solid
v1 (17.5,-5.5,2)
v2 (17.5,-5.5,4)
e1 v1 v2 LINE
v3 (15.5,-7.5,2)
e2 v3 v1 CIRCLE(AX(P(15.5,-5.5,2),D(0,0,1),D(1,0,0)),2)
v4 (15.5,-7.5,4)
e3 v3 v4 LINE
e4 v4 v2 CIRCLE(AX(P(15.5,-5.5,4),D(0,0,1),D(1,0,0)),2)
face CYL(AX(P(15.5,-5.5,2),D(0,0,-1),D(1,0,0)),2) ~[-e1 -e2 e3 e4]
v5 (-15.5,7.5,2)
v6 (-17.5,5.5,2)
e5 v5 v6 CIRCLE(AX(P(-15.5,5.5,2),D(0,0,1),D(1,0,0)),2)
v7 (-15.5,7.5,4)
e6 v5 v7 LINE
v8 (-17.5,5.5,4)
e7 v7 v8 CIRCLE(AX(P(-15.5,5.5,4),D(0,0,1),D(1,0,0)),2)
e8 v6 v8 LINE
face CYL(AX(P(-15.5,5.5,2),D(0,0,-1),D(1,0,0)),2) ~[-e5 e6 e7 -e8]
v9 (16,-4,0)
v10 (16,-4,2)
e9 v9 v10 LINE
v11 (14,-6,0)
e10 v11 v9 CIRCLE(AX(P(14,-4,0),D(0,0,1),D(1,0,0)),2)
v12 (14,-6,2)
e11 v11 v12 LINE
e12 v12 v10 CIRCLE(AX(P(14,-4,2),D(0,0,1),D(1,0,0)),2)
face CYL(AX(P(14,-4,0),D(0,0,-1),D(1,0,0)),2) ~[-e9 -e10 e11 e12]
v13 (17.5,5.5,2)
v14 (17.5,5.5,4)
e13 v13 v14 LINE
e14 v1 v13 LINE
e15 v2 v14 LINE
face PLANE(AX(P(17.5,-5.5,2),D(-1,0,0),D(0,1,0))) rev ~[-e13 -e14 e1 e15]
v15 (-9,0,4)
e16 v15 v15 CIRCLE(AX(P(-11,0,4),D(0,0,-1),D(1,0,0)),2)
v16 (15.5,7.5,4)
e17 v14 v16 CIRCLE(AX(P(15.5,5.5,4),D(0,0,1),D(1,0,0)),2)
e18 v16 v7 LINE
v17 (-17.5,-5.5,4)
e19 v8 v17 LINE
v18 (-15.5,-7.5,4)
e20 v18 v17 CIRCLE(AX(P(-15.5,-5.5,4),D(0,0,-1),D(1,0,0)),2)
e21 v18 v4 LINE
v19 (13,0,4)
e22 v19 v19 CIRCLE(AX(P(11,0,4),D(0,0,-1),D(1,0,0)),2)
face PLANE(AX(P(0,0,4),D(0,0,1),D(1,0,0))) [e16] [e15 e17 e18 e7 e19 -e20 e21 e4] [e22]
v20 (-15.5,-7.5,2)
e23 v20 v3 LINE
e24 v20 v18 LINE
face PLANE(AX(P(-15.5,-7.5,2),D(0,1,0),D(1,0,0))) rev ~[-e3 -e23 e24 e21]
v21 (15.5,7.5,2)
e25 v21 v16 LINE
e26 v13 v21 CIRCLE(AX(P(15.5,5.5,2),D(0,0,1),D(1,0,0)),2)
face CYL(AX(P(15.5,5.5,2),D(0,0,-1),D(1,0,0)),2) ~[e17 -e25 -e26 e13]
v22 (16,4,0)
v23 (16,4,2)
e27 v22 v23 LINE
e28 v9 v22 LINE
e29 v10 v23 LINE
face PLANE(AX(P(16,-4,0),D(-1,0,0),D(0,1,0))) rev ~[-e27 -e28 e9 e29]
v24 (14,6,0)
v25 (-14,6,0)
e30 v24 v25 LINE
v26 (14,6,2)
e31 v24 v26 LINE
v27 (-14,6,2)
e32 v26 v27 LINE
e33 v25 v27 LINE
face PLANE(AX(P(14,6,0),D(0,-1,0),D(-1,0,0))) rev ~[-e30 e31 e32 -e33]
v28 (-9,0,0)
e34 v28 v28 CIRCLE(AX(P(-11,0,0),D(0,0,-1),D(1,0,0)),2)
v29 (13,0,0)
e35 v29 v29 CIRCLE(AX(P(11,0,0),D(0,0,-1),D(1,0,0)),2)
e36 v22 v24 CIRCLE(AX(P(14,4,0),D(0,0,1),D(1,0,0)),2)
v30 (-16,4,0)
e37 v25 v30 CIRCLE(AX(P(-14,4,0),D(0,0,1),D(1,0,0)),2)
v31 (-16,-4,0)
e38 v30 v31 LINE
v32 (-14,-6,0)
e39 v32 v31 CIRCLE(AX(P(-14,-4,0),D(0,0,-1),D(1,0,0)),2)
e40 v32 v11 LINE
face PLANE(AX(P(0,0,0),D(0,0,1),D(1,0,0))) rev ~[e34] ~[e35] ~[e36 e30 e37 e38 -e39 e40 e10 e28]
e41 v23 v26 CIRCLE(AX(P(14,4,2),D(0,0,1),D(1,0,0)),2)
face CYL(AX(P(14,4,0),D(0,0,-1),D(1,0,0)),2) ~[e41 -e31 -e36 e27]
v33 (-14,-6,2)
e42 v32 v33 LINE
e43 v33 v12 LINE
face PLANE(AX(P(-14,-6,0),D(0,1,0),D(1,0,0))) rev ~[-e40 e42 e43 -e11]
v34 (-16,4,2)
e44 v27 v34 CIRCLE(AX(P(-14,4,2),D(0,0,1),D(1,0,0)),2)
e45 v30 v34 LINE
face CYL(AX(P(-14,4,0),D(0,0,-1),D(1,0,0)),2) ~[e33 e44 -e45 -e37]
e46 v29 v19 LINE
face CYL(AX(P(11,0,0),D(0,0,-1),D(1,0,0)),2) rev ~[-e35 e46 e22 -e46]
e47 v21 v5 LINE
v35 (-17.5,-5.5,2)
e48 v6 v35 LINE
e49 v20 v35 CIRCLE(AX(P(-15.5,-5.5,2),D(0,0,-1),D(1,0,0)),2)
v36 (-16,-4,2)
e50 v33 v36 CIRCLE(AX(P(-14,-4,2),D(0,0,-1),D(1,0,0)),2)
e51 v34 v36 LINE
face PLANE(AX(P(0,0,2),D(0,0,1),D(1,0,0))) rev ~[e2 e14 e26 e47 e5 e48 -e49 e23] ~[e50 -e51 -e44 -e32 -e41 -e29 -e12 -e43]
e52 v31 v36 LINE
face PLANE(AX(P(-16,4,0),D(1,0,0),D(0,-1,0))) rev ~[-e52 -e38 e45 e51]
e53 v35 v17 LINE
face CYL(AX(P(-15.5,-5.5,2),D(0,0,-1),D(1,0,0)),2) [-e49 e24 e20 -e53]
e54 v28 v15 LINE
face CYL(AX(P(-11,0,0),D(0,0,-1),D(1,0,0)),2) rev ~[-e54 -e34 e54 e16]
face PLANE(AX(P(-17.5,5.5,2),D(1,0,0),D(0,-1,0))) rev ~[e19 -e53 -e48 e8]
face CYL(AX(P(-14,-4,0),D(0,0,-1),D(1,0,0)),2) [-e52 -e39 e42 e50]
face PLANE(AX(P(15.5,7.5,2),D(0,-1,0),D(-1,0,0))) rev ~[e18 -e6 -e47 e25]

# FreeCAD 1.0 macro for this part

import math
import FreeCAD as App
import Part
import Sketcher
from FreeCAD import Vector

doc = App.newDocument("Part")
body = doc.addObject("PartDesign::Body", "Body")

# Sketch on XY plane
sketch1 = doc.addObject("Sketcher::SketchObject", "Sketch")
body.addObject(sketch1)
sketch1.AttachmentSupport = (doc.XY_Plane, [""])
sketch1.MapMode = "FlatFace"
sketch1.addGeometry(Part.ArcOfCircle(Part.Circle(Vector(-14, -4, 0), Vector(0, 0, 1), 2), math.radians(180), math.radians(270)), False)
sketch1.addGeometry(Part.LineSegment(Vector(-14, -6, 0), Vector(14, -6, 0)), False)
sketch1.addGeometry(Part.ArcOfCircle(Part.Circle(Vector(14, -4, 0), Vector(0, 0, 1), 2), math.radians(-90), math.radians(0)), False)
sketch1.addGeometry(Part.LineSegment(Vector(16, -4, 0), Vector(16, 4, 0)), False)
sketch1.addGeometry(Part.ArcOfCircle(Part.Circle(Vector(14, 4, 0), Vector(0, 0, 1), 2), math.radians(0), math.radians(90)), False)
sketch1.addGeometry(Part.LineSegment(Vector(14, 6, 0), Vector(-14, 6, 0)), False)
sketch1.addGeometry(Part.ArcOfCircle(Part.Circle(Vector(-14, 4, 0), Vector(0, 0, 1), 2), math.radians(90), math.radians(180)), False)
sketch1.addGeometry(Part.LineSegment(Vector(-16, 4, 0), Vector(-16, -4, 0)), False)
sketch1.addConstraint(Sketcher.Constraint("Tangent", 0, 2, 1, 1))
sketch1.addConstraint(Sketcher.Constraint("Tangent", 1, 2, 2, 1))
sketch1.addConstraint(Sketcher.Constraint("Tangent", 2, 2, 3, 1))
sketch1.addConstraint(Sketcher.Constraint("Tangent", 3, 2, 4, 1))
sketch1.addConstraint(Sketcher.Constraint("Tangent", 4, 2, 5, 1))
sketch1.addConstraint(Sketcher.Constraint("Tangent", 5, 2, 6, 1))
sketch1.addConstraint(Sketcher.Constraint("Tangent", 6, 2, 7, 1))
sketch1.addConstraint(Sketcher.Constraint("Tangent", 7, 2, 0, 1))
sketch1.addConstraint(Sketcher.Constraint("Horizontal", 1))
sketch1.addConstraint(Sketcher.Constraint("Vertical", 3))
sketch1.addConstraint(Sketcher.Constraint("Horizontal", 5))
sketch1.addConstraint(Sketcher.Constraint("Vertical", 7))
sketch1.addConstraint(Sketcher.Constraint("Equal", 0, 2))
sketch1.addConstraint(Sketcher.Constraint("Equal", 2, 4))
sketch1.addConstraint(Sketcher.Constraint("Equal", 4, 6))
sketch1.addConstraint(Sketcher.Constraint("Symmetric", 0, 3, 4, 3, -1, 1))
sketch1.addConstraint(Sketcher.Constraint("Radius", 0, 2.0))
sketch1.addConstraint(Sketcher.Constraint("DistanceX", 1, 1, 1, 2, 28.0))
sketch1.addConstraint(Sketcher.Constraint("DistanceY", 3, 1, 3, 2, 8.0))
pad1 = doc.addObject("PartDesign::Pad", "Pad")
body.addObject(pad1)
pad1.Profile = sketch1
pad1.Length = 2

# Sketch on XY plane
sketch2 = doc.addObject("Sketcher::SketchObject", "Sketch001")
body.addObject(sketch2)
sketch2.AttachmentSupport = (doc.XY_Plane, [""])
sketch2.MapMode = "FlatFace"
sketch2.AttachmentOffset = App.Placement(Vector(0, 0, 2), App.Rotation())
sketch2.addGeometry(Part.ArcOfCircle(Part.Circle(Vector(-15.5, -5.5, 0), Vector(0, 0, 1), 2), math.radians(180), math.radians(270)), False)
sketch2.addGeometry(Part.LineSegment(Vector(-15.5, -7.5, 0), Vector(15.5, -7.5, 0)), False)
sketch2.addGeometry(Part.ArcOfCircle(Part.Circle(Vector(15.5, -5.5, 0), Vector(0, 0, 1), 2), math.radians(-90), math.radians(0)), False)
sketch2.addGeometry(Part.LineSegment(Vector(17.5, -5.5, 0), Vector(17.5, 5.5, 0)), False)
sketch2.addGeometry(Part.ArcOfCircle(Part.Circle(Vector(15.5, 5.5, 0), Vector(0, 0, 1), 2), math.radians(0), math.radians(90)), False)
sketch2.addGeometry(Part.LineSegment(Vector(15.5, 7.5, 0), Vector(-15.5, 7.5, 0)), False)
sketch2.addGeometry(Part.ArcOfCircle(Part.Circle(Vector(-15.5, 5.5, 0), Vector(0, 0, 1), 2), math.radians(90), math.radians(180)), False)
sketch2.addGeometry(Part.LineSegment(Vector(-17.5, 5.5, 0), Vector(-17.5, -5.5, 0)), False)
sketch2.addConstraint(Sketcher.Constraint("Tangent", 0, 2, 1, 1))
sketch2.addConstraint(Sketcher.Constraint("Tangent", 1, 2, 2, 1))
sketch2.addConstraint(Sketcher.Constraint("Tangent", 2, 2, 3, 1))
sketch2.addConstraint(Sketcher.Constraint("Tangent", 3, 2, 4, 1))
sketch2.addConstraint(Sketcher.Constraint("Tangent", 4, 2, 5, 1))
sketch2.addConstraint(Sketcher.Constraint("Tangent", 5, 2, 6, 1))
sketch2.addConstraint(Sketcher.Constraint("Tangent", 6, 2, 7, 1))
sketch2.addConstraint(Sketcher.Constraint("Tangent", 7, 2, 0, 1))
sketch2.addConstraint(Sketcher.Constraint("Horizontal", 1))
sketch2.addConstraint(Sketcher.Constraint("Vertical", 3))
sketch2.addConstraint(Sketcher.Constraint("Horizontal", 5))
sketch2.addConstraint(Sketcher.Constraint("Vertical", 7))
sketch2.addConstraint(Sketcher.Constraint("Equal", 0, 2))
sketch2.addConstraint(Sketcher.Constraint("Equal", 2, 4))
sketch2.addConstraint(Sketcher.Constraint("Equal", 4, 6))
sketch2.addConstraint(Sketcher.Constraint("Symmetric", 0, 3, 4, 3, -1, 1))
sketch2.addConstraint(Sketcher.Constraint("Radius", 0, 2.0))
sketch2.addConstraint(Sketcher.Constraint("DistanceX", 1, 1, 1, 2, 31.0))
sketch2.addConstraint(Sketcher.Constraint("DistanceY", 3, 1, 3, 2, 11.0))
pad2 = doc.addObject("PartDesign::Pad", "Pad001")
body.addObject(pad2)
pad2.Profile = sketch2
pad2.Length = 2

# Sketch on XY plane
sketch3 = doc.addObject("Sketcher::SketchObject", "Sketch002")
body.addObject(sketch3)
sketch3.AttachmentSupport = (doc.XY_Plane, [""])
sketch3.MapMode = "FlatFace"
sketch3.addGeometry(Part.Circle(Vector(-11, 0, 0), Vector(0, 0, 1), 2), False)
sketch3.addGeometry(Part.Circle(Vector(11, 0, 0), Vector(0, 0, 1), 2), False)
sketch3.addConstraint(Sketcher.Constraint("Equal", 0, 1))
sketch3.addConstraint(Sketcher.Constraint("Symmetric", 0, 3, 1, 3, -1, 1))
sketch3.addConstraint(Sketcher.Constraint("PointOnObject", 0, 3, -1))
sketch3.addConstraint(Sketcher.Constraint("Diameter", 0, 4.0))
sketch3.addConstraint(Sketcher.Constraint("DistanceX", 0, 3, -1, 1, 11.0))
pocket1 = doc.addObject("PartDesign::Pocket", "Pocket")
body.addObject(pocket1)
pocket1.Profile = sketch3
pocket1.Length = 7.258
pocket1.Reversed = True

doc.recompute()
